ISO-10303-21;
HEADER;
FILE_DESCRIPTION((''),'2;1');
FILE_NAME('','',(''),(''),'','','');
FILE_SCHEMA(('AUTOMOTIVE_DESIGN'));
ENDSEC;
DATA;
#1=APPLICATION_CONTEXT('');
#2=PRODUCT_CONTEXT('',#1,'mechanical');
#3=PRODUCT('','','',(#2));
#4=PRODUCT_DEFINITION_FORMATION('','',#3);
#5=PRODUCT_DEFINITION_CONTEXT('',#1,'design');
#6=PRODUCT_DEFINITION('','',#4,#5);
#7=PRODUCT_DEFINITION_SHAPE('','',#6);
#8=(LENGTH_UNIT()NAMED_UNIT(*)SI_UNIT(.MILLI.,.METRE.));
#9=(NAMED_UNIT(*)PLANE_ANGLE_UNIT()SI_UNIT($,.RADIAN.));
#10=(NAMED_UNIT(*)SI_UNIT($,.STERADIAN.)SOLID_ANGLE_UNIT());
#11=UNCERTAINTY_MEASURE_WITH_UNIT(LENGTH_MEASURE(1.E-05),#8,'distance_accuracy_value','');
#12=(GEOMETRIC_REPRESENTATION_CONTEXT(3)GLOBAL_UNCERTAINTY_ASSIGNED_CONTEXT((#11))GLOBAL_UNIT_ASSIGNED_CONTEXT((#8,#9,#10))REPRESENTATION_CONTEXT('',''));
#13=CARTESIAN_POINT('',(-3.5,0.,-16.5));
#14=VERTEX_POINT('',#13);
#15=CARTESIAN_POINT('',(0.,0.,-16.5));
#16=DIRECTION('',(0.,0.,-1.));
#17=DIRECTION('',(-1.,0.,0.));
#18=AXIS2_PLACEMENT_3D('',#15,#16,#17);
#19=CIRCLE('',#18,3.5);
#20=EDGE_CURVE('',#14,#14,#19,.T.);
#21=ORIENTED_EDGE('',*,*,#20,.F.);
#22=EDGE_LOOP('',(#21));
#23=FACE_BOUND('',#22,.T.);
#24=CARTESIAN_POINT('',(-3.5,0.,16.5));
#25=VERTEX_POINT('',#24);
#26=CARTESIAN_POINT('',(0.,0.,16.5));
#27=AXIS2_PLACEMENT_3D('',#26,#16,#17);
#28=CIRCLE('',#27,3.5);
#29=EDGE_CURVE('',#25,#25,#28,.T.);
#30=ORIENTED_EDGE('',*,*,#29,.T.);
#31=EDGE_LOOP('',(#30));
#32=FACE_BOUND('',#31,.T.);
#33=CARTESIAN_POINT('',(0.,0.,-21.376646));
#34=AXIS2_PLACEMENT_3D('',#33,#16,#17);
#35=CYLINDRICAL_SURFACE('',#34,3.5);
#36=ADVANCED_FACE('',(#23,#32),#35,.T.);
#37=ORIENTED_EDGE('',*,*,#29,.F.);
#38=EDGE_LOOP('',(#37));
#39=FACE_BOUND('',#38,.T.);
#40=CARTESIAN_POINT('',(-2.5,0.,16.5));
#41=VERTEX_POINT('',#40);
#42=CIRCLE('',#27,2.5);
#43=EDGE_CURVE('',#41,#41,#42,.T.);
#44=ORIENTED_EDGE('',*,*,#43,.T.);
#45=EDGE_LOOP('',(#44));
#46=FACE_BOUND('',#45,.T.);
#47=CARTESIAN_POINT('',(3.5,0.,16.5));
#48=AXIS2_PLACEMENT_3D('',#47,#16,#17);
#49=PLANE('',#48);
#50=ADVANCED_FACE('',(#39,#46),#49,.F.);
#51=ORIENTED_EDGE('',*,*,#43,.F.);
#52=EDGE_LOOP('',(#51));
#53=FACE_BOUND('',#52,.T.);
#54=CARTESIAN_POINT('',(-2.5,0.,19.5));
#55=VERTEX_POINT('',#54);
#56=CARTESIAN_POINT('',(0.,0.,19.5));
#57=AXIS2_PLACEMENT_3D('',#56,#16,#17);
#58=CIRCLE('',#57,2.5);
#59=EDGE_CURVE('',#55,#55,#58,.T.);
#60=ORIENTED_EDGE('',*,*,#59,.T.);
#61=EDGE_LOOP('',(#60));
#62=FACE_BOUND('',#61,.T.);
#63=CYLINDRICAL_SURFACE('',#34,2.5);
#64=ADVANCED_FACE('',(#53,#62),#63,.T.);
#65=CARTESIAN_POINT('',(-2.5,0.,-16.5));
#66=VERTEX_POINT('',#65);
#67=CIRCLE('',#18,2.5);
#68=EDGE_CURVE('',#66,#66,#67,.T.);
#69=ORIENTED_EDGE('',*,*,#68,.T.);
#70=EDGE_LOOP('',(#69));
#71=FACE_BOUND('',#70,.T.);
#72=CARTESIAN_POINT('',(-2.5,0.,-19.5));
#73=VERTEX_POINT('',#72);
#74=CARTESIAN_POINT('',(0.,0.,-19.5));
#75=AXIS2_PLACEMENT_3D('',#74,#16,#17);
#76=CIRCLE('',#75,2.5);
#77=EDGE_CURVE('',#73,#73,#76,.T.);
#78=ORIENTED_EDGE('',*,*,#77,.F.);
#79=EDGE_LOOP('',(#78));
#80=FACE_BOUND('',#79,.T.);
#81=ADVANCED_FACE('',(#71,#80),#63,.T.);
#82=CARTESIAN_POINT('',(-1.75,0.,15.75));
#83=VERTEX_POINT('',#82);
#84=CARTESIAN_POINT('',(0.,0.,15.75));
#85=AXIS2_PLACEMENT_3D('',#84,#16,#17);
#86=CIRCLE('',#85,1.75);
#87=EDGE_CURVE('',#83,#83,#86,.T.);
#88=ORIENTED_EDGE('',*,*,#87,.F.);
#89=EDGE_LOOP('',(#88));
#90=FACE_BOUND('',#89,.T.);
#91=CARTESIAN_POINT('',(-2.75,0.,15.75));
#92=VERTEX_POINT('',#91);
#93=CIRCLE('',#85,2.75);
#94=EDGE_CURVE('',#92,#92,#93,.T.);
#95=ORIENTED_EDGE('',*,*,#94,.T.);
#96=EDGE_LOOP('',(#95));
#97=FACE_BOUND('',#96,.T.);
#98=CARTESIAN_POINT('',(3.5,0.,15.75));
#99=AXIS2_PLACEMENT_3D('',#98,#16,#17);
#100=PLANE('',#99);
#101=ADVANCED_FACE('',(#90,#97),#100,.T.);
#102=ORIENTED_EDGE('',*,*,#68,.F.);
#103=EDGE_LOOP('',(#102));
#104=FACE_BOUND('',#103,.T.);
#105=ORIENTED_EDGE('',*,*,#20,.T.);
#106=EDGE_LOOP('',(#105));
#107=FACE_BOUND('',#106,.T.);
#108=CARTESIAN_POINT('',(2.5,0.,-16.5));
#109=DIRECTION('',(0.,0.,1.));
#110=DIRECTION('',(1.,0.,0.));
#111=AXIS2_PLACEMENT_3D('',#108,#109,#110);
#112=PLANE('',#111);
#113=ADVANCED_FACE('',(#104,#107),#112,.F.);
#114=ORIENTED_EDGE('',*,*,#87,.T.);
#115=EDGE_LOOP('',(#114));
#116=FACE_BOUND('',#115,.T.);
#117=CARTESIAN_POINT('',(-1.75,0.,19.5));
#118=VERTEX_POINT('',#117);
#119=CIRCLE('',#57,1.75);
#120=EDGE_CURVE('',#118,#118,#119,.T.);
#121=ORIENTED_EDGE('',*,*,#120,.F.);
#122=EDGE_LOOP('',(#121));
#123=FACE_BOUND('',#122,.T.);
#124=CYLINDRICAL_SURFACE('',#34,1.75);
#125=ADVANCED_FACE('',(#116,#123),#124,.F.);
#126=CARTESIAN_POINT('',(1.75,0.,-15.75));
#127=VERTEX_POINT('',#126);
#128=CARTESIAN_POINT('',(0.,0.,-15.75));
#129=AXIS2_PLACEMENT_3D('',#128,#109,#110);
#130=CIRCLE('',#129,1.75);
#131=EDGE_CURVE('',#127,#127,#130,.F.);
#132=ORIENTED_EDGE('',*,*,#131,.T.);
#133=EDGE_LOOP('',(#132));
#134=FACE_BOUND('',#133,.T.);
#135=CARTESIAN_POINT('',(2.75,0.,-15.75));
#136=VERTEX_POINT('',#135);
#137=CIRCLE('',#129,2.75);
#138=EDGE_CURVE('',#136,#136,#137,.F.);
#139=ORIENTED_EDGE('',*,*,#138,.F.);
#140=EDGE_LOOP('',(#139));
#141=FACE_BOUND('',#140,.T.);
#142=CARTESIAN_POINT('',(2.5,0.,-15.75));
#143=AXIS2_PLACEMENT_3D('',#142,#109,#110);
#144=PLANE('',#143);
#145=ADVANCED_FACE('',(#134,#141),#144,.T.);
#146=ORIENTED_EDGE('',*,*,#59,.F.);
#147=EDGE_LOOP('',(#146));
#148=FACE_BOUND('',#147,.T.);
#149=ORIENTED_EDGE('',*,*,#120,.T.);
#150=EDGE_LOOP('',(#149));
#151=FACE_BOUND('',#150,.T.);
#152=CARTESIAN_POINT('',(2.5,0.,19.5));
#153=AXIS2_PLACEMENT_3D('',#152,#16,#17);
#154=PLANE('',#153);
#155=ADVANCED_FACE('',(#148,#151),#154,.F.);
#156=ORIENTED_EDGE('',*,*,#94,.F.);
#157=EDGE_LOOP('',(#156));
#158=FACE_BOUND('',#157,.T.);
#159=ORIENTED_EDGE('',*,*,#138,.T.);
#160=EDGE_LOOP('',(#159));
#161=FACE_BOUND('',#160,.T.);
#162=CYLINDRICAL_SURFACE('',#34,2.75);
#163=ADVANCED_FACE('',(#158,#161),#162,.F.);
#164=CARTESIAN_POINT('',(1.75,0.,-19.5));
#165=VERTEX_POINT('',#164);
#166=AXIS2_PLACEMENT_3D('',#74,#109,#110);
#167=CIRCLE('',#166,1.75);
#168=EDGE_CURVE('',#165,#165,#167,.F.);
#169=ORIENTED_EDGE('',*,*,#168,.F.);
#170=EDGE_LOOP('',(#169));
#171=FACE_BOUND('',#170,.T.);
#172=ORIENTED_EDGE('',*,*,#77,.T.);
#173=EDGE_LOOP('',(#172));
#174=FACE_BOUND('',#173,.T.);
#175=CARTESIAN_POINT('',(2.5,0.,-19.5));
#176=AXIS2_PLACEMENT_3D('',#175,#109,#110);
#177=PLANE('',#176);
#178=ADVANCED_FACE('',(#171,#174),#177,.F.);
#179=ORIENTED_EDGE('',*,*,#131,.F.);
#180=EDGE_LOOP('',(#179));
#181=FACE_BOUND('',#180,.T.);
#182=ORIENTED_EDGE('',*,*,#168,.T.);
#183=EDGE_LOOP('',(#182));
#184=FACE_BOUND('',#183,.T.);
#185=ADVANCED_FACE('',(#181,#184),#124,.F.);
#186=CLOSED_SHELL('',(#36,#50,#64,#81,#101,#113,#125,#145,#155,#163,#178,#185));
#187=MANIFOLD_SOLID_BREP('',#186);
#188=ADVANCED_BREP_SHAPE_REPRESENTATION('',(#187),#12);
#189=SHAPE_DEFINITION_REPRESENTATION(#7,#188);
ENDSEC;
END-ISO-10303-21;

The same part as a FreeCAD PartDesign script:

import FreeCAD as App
import Part
import Sketcher


def faces_at(feature, points):
    """Names of the faces that lie closest to the given points."""
    faces = feature.Shape.Faces
    near = lambda p: min(range(len(faces)), key=lambda i: faces[i].distToShape(Part.Vertex(*p))[0])
    return sorted({f"Face{near(p) + 1}" for p in points})

doc = App.newDocument("Part")
body = doc.addObject("PartDesign::Body", "Body")

# Sketch on XZ plane
sketch1 = body.newObject("Sketcher::SketchObject", "Sketch")
sketch1.AttachmentSupport = (doc.getObject("XZ_Plane"), [""])
sketch1.MapMode = "FlatFace"
sketch1.addGeometry(Part.LineSegment(App.Vector(3.5, 16.5, 0), App.Vector(3.5, -16.5, 0)), False)
sketch1.addGeometry(Part.LineSegment(App.Vector(3.5, -16.5, 0), App.Vector(2.5, -16.5, 0)), False)
sketch1.addGeometry(Part.LineSegment(App.Vector(2.5, -16.5, 0), App.Vector(2.5, -19.5, 0)), False)
sketch1.addGeometry(Part.LineSegment(App.Vector(2.5, -19.5, 0), App.Vector(0, -19.5, 0)), False)
sketch1.addGeometry(Part.LineSegment(App.Vector(0, -19.5, 0), App.Vector(0, 19.5, 0)), False)
sketch1.addGeometry(Part.LineSegment(App.Vector(0, 19.5, 0), App.Vector(2.5, 19.5, 0)), False)
sketch1.addGeometry(Part.LineSegment(App.Vector(2.5, 19.5, 0), App.Vector(2.5, 16.5, 0)), False)
sketch1.addGeometry(Part.LineSegment(App.Vector(2.5, 16.5, 0), App.Vector(3.5, 16.5, 0)), False)
sketch1.addConstraint(Sketcher.Constraint("Coincident", 0, 2, 1, 1))
sketch1.addConstraint(Sketcher.Constraint("Coincident", 1, 2, 2, 1))
sketch1.addConstraint(Sketcher.Constraint("Coincident", 2, 2, 3, 1))
sketch1.addConstraint(Sketcher.Constraint("Coincident", 3, 2, 4, 1))
sketch1.addConstraint(Sketcher.Constraint("Coincident", 4, 2, 5, 1))
sketch1.addConstraint(Sketcher.Constraint("Coincident", 5, 2, 6, 1))
sketch1.addConstraint(Sketcher.Constraint("Coincident", 6, 2, 7, 1))
sketch1.addConstraint(Sketcher.Constraint("Coincident", 7, 2, 0, 1))
sketch1.addConstraint(Sketcher.Constraint("Vertical", 0))
sketch1.addConstraint(Sketcher.Constraint("Horizontal", 1))
sketch1.addConstraint(Sketcher.Constraint("Vertical", 2))
sketch1.addConstraint(Sketcher.Constraint("Horizontal", 3))
sketch1.addConstraint(Sketcher.Constraint("Vertical", 4))
sketch1.addConstraint(Sketcher.Constraint("Horizontal", 5))
sketch1.addConstraint(Sketcher.Constraint("Vertical", 6))
sketch1.addConstraint(Sketcher.Constraint("Horizontal", 7))
sketch1.addConstraint(Sketcher.Constraint("Symmetric", 3, 2, 4, 2, -1, 1))
sketch1.addConstraint(Sketcher.Constraint("Symmetric", 1, 2, 6, 2, -1))
sketch1.addConstraint(Sketcher.Constraint("DistanceX", 1, 2, 1, 1, 1.0))
sketch1.addConstraint(Sketcher.Constraint("DistanceY", 0, 2, 0, 1, 33.0))
sketch1.addConstraint(Sketcher.Constraint("DistanceY", 2, 2, 2, 1, 3.0))
sketch1.addConstraint(Sketcher.Constraint("DistanceX", 3, 2, 3, 1, 2.5))
revolution = body.newObject("PartDesign::Revolution", "Revolution")
revolution.Profile = sketch1
revolution.ReferenceAxis = (sketch1, ["V_Axis"])
revolution.Angle = 360
doc.recompute()

thickness = body.newObject("PartDesign::Thickness", "Thickness")
thickness.Base = (revolution, faces_at(revolution, [(0, 0, -19.5), (0, 0, 19.5)]))
thickness.Value = 0.75
thickness.Reversed = True
thickness.Join = "Intersection"

doc.recompute()
